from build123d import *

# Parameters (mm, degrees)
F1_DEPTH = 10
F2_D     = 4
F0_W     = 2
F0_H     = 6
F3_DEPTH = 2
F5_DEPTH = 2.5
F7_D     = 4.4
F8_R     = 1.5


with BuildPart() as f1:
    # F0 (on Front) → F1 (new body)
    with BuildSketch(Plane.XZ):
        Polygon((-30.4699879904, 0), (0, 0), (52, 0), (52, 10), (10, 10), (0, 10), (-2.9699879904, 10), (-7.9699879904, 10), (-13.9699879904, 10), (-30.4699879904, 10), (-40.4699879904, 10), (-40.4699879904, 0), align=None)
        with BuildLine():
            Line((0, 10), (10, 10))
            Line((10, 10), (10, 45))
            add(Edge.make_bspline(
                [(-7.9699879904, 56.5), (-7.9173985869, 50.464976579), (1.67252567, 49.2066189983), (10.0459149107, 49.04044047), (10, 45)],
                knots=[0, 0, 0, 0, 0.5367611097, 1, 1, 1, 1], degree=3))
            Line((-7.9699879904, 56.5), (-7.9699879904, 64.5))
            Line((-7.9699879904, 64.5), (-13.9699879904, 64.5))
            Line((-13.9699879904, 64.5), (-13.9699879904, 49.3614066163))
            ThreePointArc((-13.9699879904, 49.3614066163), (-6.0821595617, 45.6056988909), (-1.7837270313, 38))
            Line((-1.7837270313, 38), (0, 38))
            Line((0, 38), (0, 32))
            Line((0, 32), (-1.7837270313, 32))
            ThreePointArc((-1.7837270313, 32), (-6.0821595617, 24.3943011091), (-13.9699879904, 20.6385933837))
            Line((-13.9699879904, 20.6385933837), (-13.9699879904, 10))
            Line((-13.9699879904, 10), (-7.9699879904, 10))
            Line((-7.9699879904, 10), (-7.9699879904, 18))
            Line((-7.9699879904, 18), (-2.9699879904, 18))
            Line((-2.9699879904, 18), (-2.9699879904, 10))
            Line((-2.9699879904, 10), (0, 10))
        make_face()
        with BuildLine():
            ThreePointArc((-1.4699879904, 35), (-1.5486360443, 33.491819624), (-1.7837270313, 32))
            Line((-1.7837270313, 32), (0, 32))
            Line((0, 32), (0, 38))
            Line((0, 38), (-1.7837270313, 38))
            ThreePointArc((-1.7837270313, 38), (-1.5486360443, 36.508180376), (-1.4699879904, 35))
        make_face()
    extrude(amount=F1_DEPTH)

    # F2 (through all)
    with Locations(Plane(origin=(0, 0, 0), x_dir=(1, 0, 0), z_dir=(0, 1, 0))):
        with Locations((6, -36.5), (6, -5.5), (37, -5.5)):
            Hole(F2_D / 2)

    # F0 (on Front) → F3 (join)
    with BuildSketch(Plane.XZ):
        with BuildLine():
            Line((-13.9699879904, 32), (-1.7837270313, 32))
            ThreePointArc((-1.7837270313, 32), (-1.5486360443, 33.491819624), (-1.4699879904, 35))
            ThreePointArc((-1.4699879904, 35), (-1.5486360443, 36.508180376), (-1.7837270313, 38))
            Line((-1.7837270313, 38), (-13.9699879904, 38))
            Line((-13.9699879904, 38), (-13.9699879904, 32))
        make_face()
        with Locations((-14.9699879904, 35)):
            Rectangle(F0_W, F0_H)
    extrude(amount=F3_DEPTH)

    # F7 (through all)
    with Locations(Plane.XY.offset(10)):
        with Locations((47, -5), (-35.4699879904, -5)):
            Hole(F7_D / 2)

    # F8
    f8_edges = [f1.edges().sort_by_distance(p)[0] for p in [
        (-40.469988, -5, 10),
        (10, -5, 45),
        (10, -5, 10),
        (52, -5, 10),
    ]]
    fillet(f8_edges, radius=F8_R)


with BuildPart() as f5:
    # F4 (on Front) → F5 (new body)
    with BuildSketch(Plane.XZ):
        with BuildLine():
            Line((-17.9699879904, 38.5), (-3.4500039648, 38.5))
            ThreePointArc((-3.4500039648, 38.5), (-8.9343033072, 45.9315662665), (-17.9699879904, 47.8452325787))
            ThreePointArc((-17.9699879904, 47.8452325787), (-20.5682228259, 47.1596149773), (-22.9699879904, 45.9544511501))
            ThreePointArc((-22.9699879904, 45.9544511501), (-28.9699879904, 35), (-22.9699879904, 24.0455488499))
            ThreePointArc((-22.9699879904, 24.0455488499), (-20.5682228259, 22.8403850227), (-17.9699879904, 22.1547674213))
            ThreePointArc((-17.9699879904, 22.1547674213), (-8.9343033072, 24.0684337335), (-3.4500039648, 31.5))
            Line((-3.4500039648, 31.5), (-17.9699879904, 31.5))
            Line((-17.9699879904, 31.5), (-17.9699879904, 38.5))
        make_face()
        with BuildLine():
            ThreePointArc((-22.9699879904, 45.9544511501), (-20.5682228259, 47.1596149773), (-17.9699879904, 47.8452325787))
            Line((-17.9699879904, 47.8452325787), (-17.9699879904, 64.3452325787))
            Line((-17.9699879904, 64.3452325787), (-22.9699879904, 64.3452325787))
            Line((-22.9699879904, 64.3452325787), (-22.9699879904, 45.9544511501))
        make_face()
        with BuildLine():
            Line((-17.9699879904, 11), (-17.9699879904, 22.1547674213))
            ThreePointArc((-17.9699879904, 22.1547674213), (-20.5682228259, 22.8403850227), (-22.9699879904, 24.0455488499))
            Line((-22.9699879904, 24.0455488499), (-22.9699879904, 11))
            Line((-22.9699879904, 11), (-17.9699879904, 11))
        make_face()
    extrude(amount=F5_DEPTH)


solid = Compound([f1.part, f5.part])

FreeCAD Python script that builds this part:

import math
import FreeCAD as App
import Part
import Sketcher
from FreeCAD import Vector
Q = App.Units.Quantity


def edges_at(feature, points):
    """Names of the edges that pass closest to the given points."""
    edges = feature.Shape.Edges
    near = lambda p: min(range(len(edges)), key=lambda i: edges[i].distToShape(Part.Vertex(*p))[0])
    return sorted({f"Edge{near(p) + 1}" for p in points})

doc = App.newDocument("Part")
body = doc.addObject("PartDesign::Body", "Body")

sketch1 = body.newObject("Sketcher::SketchObject", "Sketch")
sketch1.AttachmentSupport = (doc.getObject("XZ_Plane"), [""])
sketch1.MapMode = "FlatFace"
sketch1.addGeometry(Part.LineSegment(Vector(-13.969988, 10, 0), Vector(-40.469988, 10, 0)), False)
sketch1.addGeometry(Part.LineSegment(Vector(-40.469988, 10, 0), Vector(-40.469988, 0, 0)), False)
sketch1.addGeometry(Part.LineSegment(Vector(-40.469988, 0, 0), Vector(52, 0, 0)), False)
sketch1.addGeometry(Part.LineSegment(Vector(52, 0, 0), Vector(52, 10, 0)), False)
sketch1.addGeometry(Part.LineSegment(Vector(52, 10, 0), Vector(10, 10, 0)), False)
sketch1.addGeometry(Part.LineSegment(Vector(10, 10, 0), Vector(10, 45, 0)), False)
sketch1.addGeometry(Part.BSplineCurve([Vector(-7.969988, 56.5, 0), Vector(-7.917399, 50.464977, 0), Vector(1.672526, 49.206619, 0), Vector(10.045915, 49.04044, 0), Vector(10, 45, 0)], [4, 1, 4], [0, 0.53676111, 1], False, 3, [1, 1, 1, 1, 1], False), False)
sketch1.addGeometry(Part.LineSegment(Vector(-7.969988, 56.5, 0), Vector(-7.969988, 64.5, 0)), False)
sketch1.addGeometry(Part.LineSegment(Vector(-7.969988, 64.5, 0), Vector(-13.969988, 64.5, 0)), False)
sketch1.addGeometry(Part.LineSegment(Vector(-13.969988, 64.5, 0), Vector(-13.969988, 49.361407, 0)), False)
sketch1.addGeometry(Part.ArcOfCircle(Part.Circle(Vector(-15.969988, 35, 0), Vector(0, 0, 1), 14.5), math.radians(11.940544), math.radians(82.071858)), False)
sketch1.addGeometry(Part.ArcOfCircle(Part.Circle(Vector(-15.969988, 35, 0), Vector(0, 0, 1), 14.5), math.radians(0), math.radians(11.940544)), False)
sketch1.addGeometry(Part.ArcOfCircle(Part.Circle(Vector(-15.969988, 35, 0), Vector(0, 0, 1), 14.5), math.radians(-11.940544), math.radians(0)), False)
sketch1.addGeometry(Part.ArcOfCircle(Part.Circle(Vector(-15.969988, 35, 0), Vector(0, 0, 1), 14.5), math.radians(-82.071858), math.radians(-11.940544)), False)
sketch1.addGeometry(Part.LineSegment(Vector(-13.969988, 20.638593, 0), Vector(-13.969988, 10, 0)), False)
sketch1.addGeometry(Part.LineSegment(Vector(-2.969988, 10, 0), Vector(-7.969988, 10, 0)), False)
sketch1.addGeometry(Part.LineSegment(Vector(-7.969988, 10, 0), Vector(-7.969988, 18, 0)), False)
sketch1.addGeometry(Part.LineSegment(Vector(-7.969988, 18, 0), Vector(-2.969988, 18, 0)), False)
sketch1.addGeometry(Part.LineSegment(Vector(-2.969988, 18, 0), Vector(-2.969988, 10, 0)), False)
sketch1.addConstraint(Sketcher.Constraint("Block", 6))
sketch1.addConstraint(Sketcher.Constraint("Coincident", 0, 2, 1, 1))
sketch1.addConstraint(Sketcher.Constraint("Coincident", 1, 2, 2, 1))
sketch1.addConstraint(Sketcher.Constraint("Coincident", 2, 2, 3, 1))
sketch1.addConstraint(Sketcher.Constraint("Coincident", 3, 2, 4, 1))
sketch1.addConstraint(Sketcher.Constraint("Coincident", 4, 2, 5, 1))
sketch1.addConstraint(Sketcher.Constraint("Coincident", 5, 2, 6, 2))
sketch1.addConstraint(Sketcher.Constraint("Coincident", 6, 1, 7, 1))
sketch1.addConstraint(Sketcher.Constraint("Coincident", 7, 2, 8, 1))
sketch1.addConstraint(Sketcher.Constraint("Coincident", 8, 2, 9, 1))
sketch1.addConstraint(Sketcher.Constraint("Coincident", 9, 2, 10, 2))
sketch1.addConstraint(Sketcher.Constraint("Tangent", 10, 1, 11, 2))
sketch1.addConstraint(Sketcher.Constraint("Tangent", 11, 1, 12, 2))
sketch1.addConstraint(Sketcher.Constraint("Tangent", 12, 1, 13, 2))
sketch1.addConstraint(Sketcher.Constraint("Coincident", 13, 1, 14, 1))
sketch1.addConstraint(Sketcher.Constraint("Coincident", 14, 2, 0, 1))
sketch1.addConstraint(Sketcher.Constraint("Coincident", 15, 2, 16, 1))
sketch1.addConstraint(Sketcher.Constraint("Coincident", 16, 2, 17, 1))
sketch1.addConstraint(Sketcher.Constraint("Coincident", 17, 2, 18, 1))
sketch1.addConstraint(Sketcher.Constraint("Coincident", 18, 2, 15, 1))
sketch1.addConstraint(Sketcher.Constraint("Horizontal", 0))
sketch1.addConstraint(Sketcher.Constraint("Vertical", 1))
sketch1.addConstraint(Sketcher.Constraint("Horizontal", 2))
sketch1.addConstraint(Sketcher.Constraint("Vertical", 3))
sketch1.addConstraint(Sketcher.Constraint("Horizontal", 4))
sketch1.addConstraint(Sketcher.Constraint("Vertical", 5))
sketch1.addConstraint(Sketcher.Constraint("Vertical", 7))
sketch1.addConstraint(Sketcher.Constraint("Horizontal", 8))
sketch1.addConstraint(Sketcher.Constraint("Vertical", 9))
sketch1.addConstraint(Sketcher.Constraint("Vertical", 14))
sketch1.addConstraint(Sketcher.Constraint("Horizontal", 15))
sketch1.addConstraint(Sketcher.Constraint("Vertical", 16))
sketch1.addConstraint(Sketcher.Constraint("Horizontal", 17))
sketch1.addConstraint(Sketcher.Constraint("Vertical", 18))
sketch1.addConstraint(Sketcher.Constraint("Coincident", 12, 3, 10, 3))
sketch1.addConstraint(Sketcher.Constraint("Equal", 12, 13))
sketch1.addConstraint(Sketcher.Constraint("PointOnObject", 1, 2, -1))
sketch1.addConstraint(Sketcher.Constraint("Horizontal", 0, 2, 3, 2))
sketch1.addConstraint(Sketcher.Constraint("Horizontal", 13, 3, 11, 1))
sketch1.addConstraint(Sketcher.Constraint("Horizontal", 14, 2, 15, 2))
sketch1.addConstraint(Sketcher.Constraint("Vertical", 10, 1, 12, 1))
sketch1.addConstraint(Sketcher.Constraint("Vertical", 9, 2, 13, 1))
sketch1.addConstraint(Sketcher.Constraint("Vertical", 7, 2, 15, 2))
sketch1.addConstraint(Sketcher.Constraint("Equal", 7, 16))
sketch1.addConstraint(Sketcher.Constraint("Radius", 10, Q("14.5 mm")))
sketch1.addConstraint(Sketcher.Constraint("DistanceX", 4, 2, 4, 1, Q("42 mm")))
sketch1.addConstraint(Sketcher.Constraint("DistanceX", 8, 2, 8, 1, Q("6 mm")))
sketch1.addConstraint(Sketcher.Constraint("DistanceX", 15, 2, 15, 1, Q("5 mm")))
sketch1.addConstraint(Sketcher.Constraint("DistanceY", 1, 2, 1, 1, Q("10 mm")))
sketch1.addConstraint(Sketcher.Constraint("DistanceY", 7, 1, 7, 2, Q("8 mm")))
sketch1.addConstraint(Sketcher.Constraint("DistanceX", 0, 2, 0, 1, Q("26.5 mm")))
sketch1.addConstraint(Sketcher.Constraint("DistanceY", -1, 1, 10, 3, Q("35 mm")))
sketch1.addConstraint(Sketcher.Constraint("DistanceY", -1, 1, 10, 1, Q("38 mm")))
sketch1.addConstraint(Sketcher.Constraint("DistanceX", 10, 3, 7, 2, Q("8 mm")))
pad1 = body.newObject("PartDesign::Pad", "Pad")
pad1.Profile = sketch1
pad1.Length = 10

sketch2 = body.newObject("Sketcher::SketchObject", "Sketch001")
sketch2.AttachmentSupport = (doc.getObject("XZ_Plane"), [""])
sketch2.MapMode = "FlatFace"
sketch2.addGeometry(Part.Circle(Vector(6, 36.5, 0), Vector(0, 0, 1), 2), False)
sketch2.addGeometry(Part.Circle(Vector(6, 5.5, 0), Vector(0, 0, 1), 2), False)
sketch2.addGeometry(Part.Circle(Vector(37, 5.5, 0), Vector(0, 0, 1), 2), False)
sketch2.addConstraint(Sketcher.Constraint("Equal", 0, 1))
sketch2.addConstraint(Sketcher.Constraint("Equal", 1, 2))
sketch2.addConstraint(Sketcher.Constraint("Horizontal", 1, 3, 2, 3))
sketch2.addConstraint(Sketcher.Constraint("Vertical", 0, 3, 1, 3))
sketch2.addConstraint(Sketcher.Constraint("Diameter", 0, Q("4 mm")))
sketch2.addConstraint(Sketcher.Constraint("DistanceX", -1, 1, 0, 3, Q("6 mm")))
sketch2.addConstraint(Sketcher.Constraint("DistanceX", -1, 1, 2, 3, Q("37 mm")))
sketch2.addConstraint(Sketcher.Constraint("DistanceY", 1, 3, 0, 3, Q("31 mm")))
sketch2.addConstraint(Sketcher.Constraint("DistanceY", -1, 1, 0, 3, Q("36.5 mm")))
doc.recompute()
hole = body.newObject("PartDesign::Hole", "Hole")
hole.Profile = sketch2
hole.ThreadType = "None"
hole.Diameter = 4
hole.DepthType = "ThroughAll"
hole.Reversed = True

sketch3 = body.newObject("Sketcher::SketchObject", "Sketch002")
sketch3.AttachmentSupport = (doc.getObject("XZ_Plane"), [""])
sketch3.MapMode = "FlatFace"
sketch3.addGeometry(Part.ArcOfCircle(Part.Circle(Vector(-16, 35, 0), Vector(0, 0, 1), 14.5), math.radians(-11.94), math.radians(0)), False)
sketch3.addGeometry(Part.ArcOfCircle(Part.Circle(Vector(-16, 35, 0), Vector(0, 0, 1), 14.5), math.radians(0), math.radians(11.94)), False)
sketch3.addGeometry(Part.LineSegment(Vector(-1.8, 38, 0), Vector(-16, 38, 0)), False)
sketch3.addGeometry(Part.LineSegment(Vector(-16, 38, 0), Vector(-16, 32, 0)), False)
sketch3.addGeometry(Part.LineSegment(Vector(-16, 32, 0), Vector(-1.8, 32, 0)), False)
sketch3.addConstraint(Sketcher.Constraint("Tangent", 0, 2, 1, 1))
sketch3.addConstraint(Sketcher.Constraint("Coincident", 1, 2, 2, 1))
sketch3.addConstraint(Sketcher.Constraint("Coincident", 2, 2, 3, 1))
sketch3.addConstraint(Sketcher.Constraint("Coincident", 3, 2, 4, 1))
sketch3.addConstraint(Sketcher.Constraint("Coincident", 4, 2, 0, 1))
sketch3.addConstraint(Sketcher.Constraint("Horizontal", 2))
sketch3.addConstraint(Sketcher.Constraint("Vertical", 3))
sketch3.addConstraint(Sketcher.Constraint("Horizontal", 4))
sketch3.addConstraint(Sketcher.Constraint("Equal", 0, 1))
sketch3.addConstraint(Sketcher.Constraint("Horizontal", 1, 3, 0, 2))
sketch3.addConstraint(Sketcher.Constraint("Vertical", 1, 3, 2, 2))
sketch3.addConstraint(Sketcher.Constraint("Vertical", 1, 2, 4, 2))
sketch3.addConstraint(Sketcher.Constraint("Radius", 0, Q("14.5 mm")))
sketch3.addConstraint(Sketcher.Constraint("DistanceY", 3, 2, 3, 1, Q("6 mm")))
sketch3.addConstraint(Sketcher.Constraint("DistanceY", -1, 1, 0, 3, Q("35 mm")))
sketch3.addConstraint(Sketcher.Constraint("DistanceX", 0, 3, -1, 1, Q("15.969988 mm")))
pad2 = body.newObject("PartDesign::Pad", "Pad001")
pad2.Profile = sketch3
pad2.Length = 2

sketch4 = body.newObject("Sketcher::SketchObject", "Sketch003")
sketch4.AttachmentSupport = (doc.getObject("XY_Plane"), [""])
sketch4.MapMode = "FlatFace"
sketch4.AttachmentOffset = App.Placement(Vector(0, 0, 10), App.Rotation())
sketch4.addGeometry(Part.Circle(Vector(47, -5, 0), Vector(0, 0, 1), 2.2), False)
sketch4.addGeometry(Part.Circle(Vector(-35.5, -5, 0), Vector(0, 0, 1), 2.2), False)
sketch4.addConstraint(Sketcher.Constraint("Equal", 0, 1))
sketch4.addConstraint(Sketcher.Constraint("Horizontal", 0, 3, 1, 3))
sketch4.addConstraint(Sketcher.Constraint("Diameter", 0, Q("4.4 mm")))
sketch4.addConstraint(Sketcher.Constraint("DistanceX", -1, 1, 0, 3, Q("47 mm")))
sketch4.addConstraint(Sketcher.Constraint("DistanceY", 0, 3, -1, 1, Q("5 mm")))
sketch4.addConstraint(Sketcher.Constraint("DistanceX", 1, 3, -1, 1, Q("35.469988 mm")))
doc.recompute()
hole2 = body.newObject("PartDesign::Hole", "Hole001")
hole2.Profile = sketch4
hole2.ThreadType = "None"
hole2.Diameter = 4.4
hole2.DepthType = "ThroughAll"
doc.recompute()

fillet = body.newObject("PartDesign::Fillet", "Fillet")
fillet.Base = (hole2, edges_at(hole2, [
    (-40.47, -5, 10),
    (10, -5, 45),
    (10, -5, 10),
    (52, -5, 10),
]))
fillet.Radius = 1.5
body2 = doc.addObject("PartDesign::Body", "Body001")

sketch5 = body2.newObject("Sketcher::SketchObject", "Sketch004")
sketch5.AttachmentSupport = (doc.getObject("XZ_Plane001"), [""])
sketch5.MapMode = "FlatFace"
sketch5.addGeometry(Part.LineSegment(Vector(-18, 38, 0), Vector(-3, 38, 0)), False)
sketch5.addGeometry(Part.ArcOfCircle(Part.Circle(Vector(-16, 35, 0), Vector(0, 0, 1), 13), math.radians(16), math.radians(99)), False)
sketch5.addGeometry(Part.LineSegment(Vector(-18, 48, 0), Vector(-18, 64, 0)), False)
sketch5.addGeometry(Part.LineSegment(Vector(-18, 64, 0), Vector(-23, 64, 0)), False)
sketch5.addGeometry(Part.LineSegment(Vector(-23, 64, 0), Vector(-23, 46, 0)), False)
sketch5.addGeometry(Part.ArcOfCircle(Part.Circle(Vector(-16, 35, 0), Vector(0, 0, 1), 13), math.radians(123), math.radians(237)), False)
sketch5.addGeometry(Part.LineSegment(Vector(-23, 24, 0), Vector(-23, 11, 0)), False)
sketch5.addGeometry(Part.LineSegment(Vector(-23, 11, 0), Vector(-18, 11, 0)), False)
sketch5.addGeometry(Part.LineSegment(Vector(-18, 11, 0), Vector(-18, 22, 0)), False)
sketch5.addGeometry(Part.ArcOfCircle(Part.Circle(Vector(-16, 35, 0), Vector(0, 0, 1), 13), math.radians(-99), math.radians(-16)), False)
sketch5.addGeometry(Part.LineSegment(Vector(-3, 32, 0), Vector(-18, 32, 0)), False)
sketch5.addGeometry(Part.LineSegment(Vector(-18, 32, 0), Vector(-18, 38, 0)), False)
sketch5.addConstraint(Sketcher.Constraint("Coincident", 0, 2, 1, 1))
sketch5.addConstraint(Sketcher.Constraint("Coincident", 1, 2, 2, 1))
sketch5.addConstraint(Sketcher.Constraint("Coincident", 2, 2, 3, 1))
sketch5.addConstraint(Sketcher.Constraint("Coincident", 3, 2, 4, 1))
sketch5.addConstraint(Sketcher.Constraint("Coincident", 4, 2, 5, 1))
sketch5.addConstraint(Sketcher.Constraint("Coincident", 5, 2, 6, 1))
sketch5.addConstraint(Sketcher.Constraint("Coincident", 6, 2, 7, 1))
sketch5.addConstraint(Sketcher.Constraint("Coincident", 7, 2, 8, 1))
sketch5.addConstraint(Sketcher.Constraint("Coincident", 8, 2, 9, 1))
sketch5.addConstraint(Sketcher.Constraint("Coincident", 9, 2, 10, 1))
sketch5.addConstraint(Sketcher.Constraint("Coincident", 10, 2, 11, 1))
sketch5.addConstraint(Sketcher.Constraint("Coincident", 11, 2, 0, 1))
sketch5.addConstraint(Sketcher.Constraint("Horizontal", 0))
sketch5.addConstraint(Sketcher.Constraint("Vertical", 2))
sketch5.addConstraint(Sketcher.Constraint("Horizontal", 3))
sketch5.addConstraint(Sketcher.Constraint("Vertical", 4))
sketch5.addConstraint(Sketcher.Constraint("Vertical", 6))
sketch5.addConstraint(Sketcher.Constraint("Horizontal", 7))
sketch5.addConstraint(Sketcher.Constraint("Vertical", 8))
sketch5.addConstraint(Sketcher.Constraint("Horizontal", 10))
sketch5.addConstraint(Sketcher.Constraint("Vertical", 11))
sketch5.addConstraint(Sketcher.Constraint("Coincident", 5, 3, 1, 3))
sketch5.addConstraint(Sketcher.Constraint("Coincident", 9, 3, 1, 3))
sketch5.addConstraint(Sketcher.Constraint("Equal", 1, 5))
sketch5.addConstraint(Sketcher.Constraint("Equal", 5, 9))
sketch5.addConstraint(Sketcher.Constraint("Vertical", 4, 2, 5, 2))
sketch5.addConstraint(Sketcher.Constraint("Vertical", 2, 2, 7, 2))
sketch5.addConstraint(Sketcher.Constraint("Vertical", 0, 2, 9, 2))
sketch5.addConstraint(Sketcher.Constraint("Vertical", 8, 2, 10, 2))
sketch5.addConstraint(Sketcher.Constraint("Radius", 1, Q("13 mm")))
sketch5.addConstraint(Sketcher.Constraint("DistanceX", 3, 2, 3, 1, Q("5 mm")))
sketch5.addConstraint(Sketcher.Constraint("DistanceY", 11, 1, 11, 2, Q("7 mm")))
sketch5.addConstraint(Sketcher.Constraint("DistanceY", 2, 1, 2, 2, Q("16.5 mm")))
sketch5.addConstraint(Sketcher.Constraint("DistanceY", -1, 1, 1, 3, Q("35 mm")))
sketch5.addConstraint(Sketcher.Constraint("DistanceY", -1, 1, 6, 2, Q("11 mm")))
sketch5.addConstraint(Sketcher.Constraint("DistanceX", 1, 2, 1, 3, Q("2 mm")))
sketch5.addConstraint(Sketcher.Constraint("DistanceX", 1, 3, -1, 1, Q("15.969988 mm")))
pad3 = body2.newObject("PartDesign::Pad", "Pad002")
pad3.Profile = sketch5
pad3.Length = 2.5

doc.recompute()
